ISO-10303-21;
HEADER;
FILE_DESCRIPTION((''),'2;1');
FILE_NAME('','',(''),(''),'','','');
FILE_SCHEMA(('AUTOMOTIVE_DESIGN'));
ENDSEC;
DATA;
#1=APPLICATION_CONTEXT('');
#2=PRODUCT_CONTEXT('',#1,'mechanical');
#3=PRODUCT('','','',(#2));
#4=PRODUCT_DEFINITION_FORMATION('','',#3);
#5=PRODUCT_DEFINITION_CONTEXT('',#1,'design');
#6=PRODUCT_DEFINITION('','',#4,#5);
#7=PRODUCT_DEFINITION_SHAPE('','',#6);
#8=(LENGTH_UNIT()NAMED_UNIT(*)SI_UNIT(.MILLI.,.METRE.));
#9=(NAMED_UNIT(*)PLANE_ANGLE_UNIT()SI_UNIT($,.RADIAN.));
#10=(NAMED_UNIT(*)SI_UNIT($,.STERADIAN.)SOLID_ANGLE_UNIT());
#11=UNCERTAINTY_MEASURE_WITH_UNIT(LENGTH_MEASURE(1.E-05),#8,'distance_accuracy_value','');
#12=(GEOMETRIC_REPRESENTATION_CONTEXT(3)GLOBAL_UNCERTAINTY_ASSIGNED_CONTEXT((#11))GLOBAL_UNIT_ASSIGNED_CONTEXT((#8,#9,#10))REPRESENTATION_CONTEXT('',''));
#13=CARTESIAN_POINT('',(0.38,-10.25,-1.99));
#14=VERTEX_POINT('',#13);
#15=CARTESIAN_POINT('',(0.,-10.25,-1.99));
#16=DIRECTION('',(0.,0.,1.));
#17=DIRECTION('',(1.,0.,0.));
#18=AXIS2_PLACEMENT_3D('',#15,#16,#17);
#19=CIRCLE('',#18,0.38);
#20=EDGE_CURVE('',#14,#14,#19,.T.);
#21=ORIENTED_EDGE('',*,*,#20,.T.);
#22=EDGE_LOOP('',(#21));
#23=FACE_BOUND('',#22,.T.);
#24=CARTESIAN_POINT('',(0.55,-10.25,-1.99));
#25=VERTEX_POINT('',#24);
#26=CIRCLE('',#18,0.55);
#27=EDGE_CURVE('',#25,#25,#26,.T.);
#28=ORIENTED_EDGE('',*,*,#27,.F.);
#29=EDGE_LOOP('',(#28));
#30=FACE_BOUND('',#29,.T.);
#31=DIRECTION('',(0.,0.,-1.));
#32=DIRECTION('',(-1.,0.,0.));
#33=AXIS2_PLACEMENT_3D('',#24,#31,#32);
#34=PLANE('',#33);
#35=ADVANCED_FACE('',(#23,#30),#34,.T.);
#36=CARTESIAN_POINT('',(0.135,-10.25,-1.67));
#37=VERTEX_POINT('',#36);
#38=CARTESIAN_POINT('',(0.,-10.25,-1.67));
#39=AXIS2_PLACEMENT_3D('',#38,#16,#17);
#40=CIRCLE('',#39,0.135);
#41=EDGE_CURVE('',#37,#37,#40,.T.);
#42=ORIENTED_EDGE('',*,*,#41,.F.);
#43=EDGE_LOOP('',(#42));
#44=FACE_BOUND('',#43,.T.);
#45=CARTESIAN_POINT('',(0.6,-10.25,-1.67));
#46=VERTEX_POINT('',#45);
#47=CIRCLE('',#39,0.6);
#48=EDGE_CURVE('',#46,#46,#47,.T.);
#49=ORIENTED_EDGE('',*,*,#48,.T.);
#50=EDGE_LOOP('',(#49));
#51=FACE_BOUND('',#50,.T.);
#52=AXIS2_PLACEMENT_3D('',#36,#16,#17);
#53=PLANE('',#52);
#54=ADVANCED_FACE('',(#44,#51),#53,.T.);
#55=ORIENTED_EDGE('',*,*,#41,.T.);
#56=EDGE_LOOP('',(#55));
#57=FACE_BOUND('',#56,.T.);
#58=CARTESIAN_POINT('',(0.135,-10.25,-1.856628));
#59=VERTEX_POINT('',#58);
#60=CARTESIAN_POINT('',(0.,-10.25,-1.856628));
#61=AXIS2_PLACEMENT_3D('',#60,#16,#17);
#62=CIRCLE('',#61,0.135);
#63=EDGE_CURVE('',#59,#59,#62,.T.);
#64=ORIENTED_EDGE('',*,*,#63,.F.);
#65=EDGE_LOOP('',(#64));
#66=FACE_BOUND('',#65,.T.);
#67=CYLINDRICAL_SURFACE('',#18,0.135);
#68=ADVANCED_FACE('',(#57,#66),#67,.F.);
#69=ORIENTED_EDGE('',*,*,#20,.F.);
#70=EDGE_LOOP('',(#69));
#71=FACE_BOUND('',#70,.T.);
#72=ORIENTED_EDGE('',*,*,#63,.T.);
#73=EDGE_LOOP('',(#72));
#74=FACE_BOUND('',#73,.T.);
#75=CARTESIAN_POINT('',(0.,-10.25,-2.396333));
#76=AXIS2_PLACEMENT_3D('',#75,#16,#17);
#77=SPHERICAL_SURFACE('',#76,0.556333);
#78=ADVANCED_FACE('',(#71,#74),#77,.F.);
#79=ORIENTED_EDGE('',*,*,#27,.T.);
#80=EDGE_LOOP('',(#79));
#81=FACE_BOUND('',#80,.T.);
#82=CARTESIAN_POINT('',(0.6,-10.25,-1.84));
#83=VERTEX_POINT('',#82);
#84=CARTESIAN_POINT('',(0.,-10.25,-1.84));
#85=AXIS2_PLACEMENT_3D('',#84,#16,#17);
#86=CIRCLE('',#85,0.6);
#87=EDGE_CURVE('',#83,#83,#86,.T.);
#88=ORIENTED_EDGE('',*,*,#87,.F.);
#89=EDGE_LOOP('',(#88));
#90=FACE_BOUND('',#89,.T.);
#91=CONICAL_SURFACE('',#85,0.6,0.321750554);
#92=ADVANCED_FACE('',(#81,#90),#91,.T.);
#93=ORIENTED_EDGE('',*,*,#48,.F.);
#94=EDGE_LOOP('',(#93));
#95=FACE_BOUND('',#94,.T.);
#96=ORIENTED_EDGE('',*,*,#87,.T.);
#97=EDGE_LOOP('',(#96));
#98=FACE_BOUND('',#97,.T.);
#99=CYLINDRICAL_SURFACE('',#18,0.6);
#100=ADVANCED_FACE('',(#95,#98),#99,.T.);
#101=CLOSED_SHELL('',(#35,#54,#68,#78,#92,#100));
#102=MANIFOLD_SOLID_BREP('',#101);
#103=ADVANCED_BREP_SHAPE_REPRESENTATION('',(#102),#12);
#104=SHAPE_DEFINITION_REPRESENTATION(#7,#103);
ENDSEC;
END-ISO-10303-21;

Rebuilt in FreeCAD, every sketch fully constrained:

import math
import FreeCAD as App
import Part
import Sketcher
from FreeCAD import Vector
Q = App.Units.Quantity

doc = App.newDocument("Part")
body = doc.addObject("PartDesign::Body", "Body")

sketch1 = body.newObject("Sketcher::SketchObject", "Sketch")
sketch1.AttachmentSupport = (doc.getObject("XZ_Plane"), [""])
sketch1.MapMode = "FlatFace"
sketch1.AttachmentOffset = App.Placement(Vector(0, 0, 10.25), App.Rotation())
sketch1.addGeometry(Part.LineSegment(Vector(0.6, -1.84, 0), Vector(0.55, -1.99, 0)), False)
sketch1.addGeometry(Part.LineSegment(Vector(0.55, -1.99, 0), Vector(0.38, -1.99, 0)), False)
sketch1.addGeometry(Part.ArcOfCircle(Part.Circle(Vector(0, -2.4, 0), Vector(0, 0, 1), 0.56), math.radians(47), math.radians(76)), False)
sketch1.addGeometry(Part.LineSegment(Vector(0.14, -1.86, 0), Vector(0.14, -1.67, 0)), False)
sketch1.addGeometry(Part.LineSegment(Vector(0.14, -1.67, 0), Vector(0.6, -1.67, 0)), False)
sketch1.addGeometry(Part.LineSegment(Vector(0.6, -1.67, 0), Vector(0.6, -1.84, 0)), False)
sketch1.addConstraint(Sketcher.Constraint("Coincident", 0, 2, 1, 1))
sketch1.addConstraint(Sketcher.Constraint("Coincident", 1, 2, 2, 1))
sketch1.addConstraint(Sketcher.Constraint("Coincident", 2, 2, 3, 1))
sketch1.addConstraint(Sketcher.Constraint("Coincident", 3, 2, 4, 1))
sketch1.addConstraint(Sketcher.Constraint("Coincident", 4, 2, 5, 1))
sketch1.addConstraint(Sketcher.Constraint("Coincident", 5, 2, 0, 1))
sketch1.addConstraint(Sketcher.Constraint("Horizontal", 1))
sketch1.addConstraint(Sketcher.Constraint("Vertical", 3))
sketch1.addConstraint(Sketcher.Constraint("Horizontal", 4))
sketch1.addConstraint(Sketcher.Constraint("Vertical", 5))
sketch1.addConstraint(Sketcher.Constraint("PointOnObject", 2, 3, -2))
sketch1.addConstraint(Sketcher.Constraint("Equal", 1, 5))
sketch1.addConstraint(Sketcher.Constraint("DistanceX", 1, 2, 1, 1, Q("0.17 mm")))
sketch1.addConstraint(Sketcher.Constraint("DistanceX", -1, 1, 4, 2, Q("0.6 mm")))
sketch1.addConstraint(Sketcher.Constraint("DistanceX", 4, 1, 4, 2, Q("0.465 mm")))
sketch1.addConstraint(Sketcher.Constraint("DistanceX", -1, 1, 0, 2, Q("0.55 mm")))
sketch1.addConstraint(Sketcher.Constraint("DistanceY", 0, 2, -1, 1, Q("1.99 mm")))
sketch1.addConstraint(Sketcher.Constraint("DistanceY", 3, 2, -1, 1, Q("1.67 mm")))
sketch1.addConstraint(Sketcher.Constraint("Radius", 2, Q("0.556333 mm")))
revolution = body.newObject("PartDesign::Revolution", "Revolution")
revolution.Profile = sketch1
revolution.ReferenceAxis = (sketch1, ["V_Axis"])
revolution.Angle = 360

doc.recompute()
